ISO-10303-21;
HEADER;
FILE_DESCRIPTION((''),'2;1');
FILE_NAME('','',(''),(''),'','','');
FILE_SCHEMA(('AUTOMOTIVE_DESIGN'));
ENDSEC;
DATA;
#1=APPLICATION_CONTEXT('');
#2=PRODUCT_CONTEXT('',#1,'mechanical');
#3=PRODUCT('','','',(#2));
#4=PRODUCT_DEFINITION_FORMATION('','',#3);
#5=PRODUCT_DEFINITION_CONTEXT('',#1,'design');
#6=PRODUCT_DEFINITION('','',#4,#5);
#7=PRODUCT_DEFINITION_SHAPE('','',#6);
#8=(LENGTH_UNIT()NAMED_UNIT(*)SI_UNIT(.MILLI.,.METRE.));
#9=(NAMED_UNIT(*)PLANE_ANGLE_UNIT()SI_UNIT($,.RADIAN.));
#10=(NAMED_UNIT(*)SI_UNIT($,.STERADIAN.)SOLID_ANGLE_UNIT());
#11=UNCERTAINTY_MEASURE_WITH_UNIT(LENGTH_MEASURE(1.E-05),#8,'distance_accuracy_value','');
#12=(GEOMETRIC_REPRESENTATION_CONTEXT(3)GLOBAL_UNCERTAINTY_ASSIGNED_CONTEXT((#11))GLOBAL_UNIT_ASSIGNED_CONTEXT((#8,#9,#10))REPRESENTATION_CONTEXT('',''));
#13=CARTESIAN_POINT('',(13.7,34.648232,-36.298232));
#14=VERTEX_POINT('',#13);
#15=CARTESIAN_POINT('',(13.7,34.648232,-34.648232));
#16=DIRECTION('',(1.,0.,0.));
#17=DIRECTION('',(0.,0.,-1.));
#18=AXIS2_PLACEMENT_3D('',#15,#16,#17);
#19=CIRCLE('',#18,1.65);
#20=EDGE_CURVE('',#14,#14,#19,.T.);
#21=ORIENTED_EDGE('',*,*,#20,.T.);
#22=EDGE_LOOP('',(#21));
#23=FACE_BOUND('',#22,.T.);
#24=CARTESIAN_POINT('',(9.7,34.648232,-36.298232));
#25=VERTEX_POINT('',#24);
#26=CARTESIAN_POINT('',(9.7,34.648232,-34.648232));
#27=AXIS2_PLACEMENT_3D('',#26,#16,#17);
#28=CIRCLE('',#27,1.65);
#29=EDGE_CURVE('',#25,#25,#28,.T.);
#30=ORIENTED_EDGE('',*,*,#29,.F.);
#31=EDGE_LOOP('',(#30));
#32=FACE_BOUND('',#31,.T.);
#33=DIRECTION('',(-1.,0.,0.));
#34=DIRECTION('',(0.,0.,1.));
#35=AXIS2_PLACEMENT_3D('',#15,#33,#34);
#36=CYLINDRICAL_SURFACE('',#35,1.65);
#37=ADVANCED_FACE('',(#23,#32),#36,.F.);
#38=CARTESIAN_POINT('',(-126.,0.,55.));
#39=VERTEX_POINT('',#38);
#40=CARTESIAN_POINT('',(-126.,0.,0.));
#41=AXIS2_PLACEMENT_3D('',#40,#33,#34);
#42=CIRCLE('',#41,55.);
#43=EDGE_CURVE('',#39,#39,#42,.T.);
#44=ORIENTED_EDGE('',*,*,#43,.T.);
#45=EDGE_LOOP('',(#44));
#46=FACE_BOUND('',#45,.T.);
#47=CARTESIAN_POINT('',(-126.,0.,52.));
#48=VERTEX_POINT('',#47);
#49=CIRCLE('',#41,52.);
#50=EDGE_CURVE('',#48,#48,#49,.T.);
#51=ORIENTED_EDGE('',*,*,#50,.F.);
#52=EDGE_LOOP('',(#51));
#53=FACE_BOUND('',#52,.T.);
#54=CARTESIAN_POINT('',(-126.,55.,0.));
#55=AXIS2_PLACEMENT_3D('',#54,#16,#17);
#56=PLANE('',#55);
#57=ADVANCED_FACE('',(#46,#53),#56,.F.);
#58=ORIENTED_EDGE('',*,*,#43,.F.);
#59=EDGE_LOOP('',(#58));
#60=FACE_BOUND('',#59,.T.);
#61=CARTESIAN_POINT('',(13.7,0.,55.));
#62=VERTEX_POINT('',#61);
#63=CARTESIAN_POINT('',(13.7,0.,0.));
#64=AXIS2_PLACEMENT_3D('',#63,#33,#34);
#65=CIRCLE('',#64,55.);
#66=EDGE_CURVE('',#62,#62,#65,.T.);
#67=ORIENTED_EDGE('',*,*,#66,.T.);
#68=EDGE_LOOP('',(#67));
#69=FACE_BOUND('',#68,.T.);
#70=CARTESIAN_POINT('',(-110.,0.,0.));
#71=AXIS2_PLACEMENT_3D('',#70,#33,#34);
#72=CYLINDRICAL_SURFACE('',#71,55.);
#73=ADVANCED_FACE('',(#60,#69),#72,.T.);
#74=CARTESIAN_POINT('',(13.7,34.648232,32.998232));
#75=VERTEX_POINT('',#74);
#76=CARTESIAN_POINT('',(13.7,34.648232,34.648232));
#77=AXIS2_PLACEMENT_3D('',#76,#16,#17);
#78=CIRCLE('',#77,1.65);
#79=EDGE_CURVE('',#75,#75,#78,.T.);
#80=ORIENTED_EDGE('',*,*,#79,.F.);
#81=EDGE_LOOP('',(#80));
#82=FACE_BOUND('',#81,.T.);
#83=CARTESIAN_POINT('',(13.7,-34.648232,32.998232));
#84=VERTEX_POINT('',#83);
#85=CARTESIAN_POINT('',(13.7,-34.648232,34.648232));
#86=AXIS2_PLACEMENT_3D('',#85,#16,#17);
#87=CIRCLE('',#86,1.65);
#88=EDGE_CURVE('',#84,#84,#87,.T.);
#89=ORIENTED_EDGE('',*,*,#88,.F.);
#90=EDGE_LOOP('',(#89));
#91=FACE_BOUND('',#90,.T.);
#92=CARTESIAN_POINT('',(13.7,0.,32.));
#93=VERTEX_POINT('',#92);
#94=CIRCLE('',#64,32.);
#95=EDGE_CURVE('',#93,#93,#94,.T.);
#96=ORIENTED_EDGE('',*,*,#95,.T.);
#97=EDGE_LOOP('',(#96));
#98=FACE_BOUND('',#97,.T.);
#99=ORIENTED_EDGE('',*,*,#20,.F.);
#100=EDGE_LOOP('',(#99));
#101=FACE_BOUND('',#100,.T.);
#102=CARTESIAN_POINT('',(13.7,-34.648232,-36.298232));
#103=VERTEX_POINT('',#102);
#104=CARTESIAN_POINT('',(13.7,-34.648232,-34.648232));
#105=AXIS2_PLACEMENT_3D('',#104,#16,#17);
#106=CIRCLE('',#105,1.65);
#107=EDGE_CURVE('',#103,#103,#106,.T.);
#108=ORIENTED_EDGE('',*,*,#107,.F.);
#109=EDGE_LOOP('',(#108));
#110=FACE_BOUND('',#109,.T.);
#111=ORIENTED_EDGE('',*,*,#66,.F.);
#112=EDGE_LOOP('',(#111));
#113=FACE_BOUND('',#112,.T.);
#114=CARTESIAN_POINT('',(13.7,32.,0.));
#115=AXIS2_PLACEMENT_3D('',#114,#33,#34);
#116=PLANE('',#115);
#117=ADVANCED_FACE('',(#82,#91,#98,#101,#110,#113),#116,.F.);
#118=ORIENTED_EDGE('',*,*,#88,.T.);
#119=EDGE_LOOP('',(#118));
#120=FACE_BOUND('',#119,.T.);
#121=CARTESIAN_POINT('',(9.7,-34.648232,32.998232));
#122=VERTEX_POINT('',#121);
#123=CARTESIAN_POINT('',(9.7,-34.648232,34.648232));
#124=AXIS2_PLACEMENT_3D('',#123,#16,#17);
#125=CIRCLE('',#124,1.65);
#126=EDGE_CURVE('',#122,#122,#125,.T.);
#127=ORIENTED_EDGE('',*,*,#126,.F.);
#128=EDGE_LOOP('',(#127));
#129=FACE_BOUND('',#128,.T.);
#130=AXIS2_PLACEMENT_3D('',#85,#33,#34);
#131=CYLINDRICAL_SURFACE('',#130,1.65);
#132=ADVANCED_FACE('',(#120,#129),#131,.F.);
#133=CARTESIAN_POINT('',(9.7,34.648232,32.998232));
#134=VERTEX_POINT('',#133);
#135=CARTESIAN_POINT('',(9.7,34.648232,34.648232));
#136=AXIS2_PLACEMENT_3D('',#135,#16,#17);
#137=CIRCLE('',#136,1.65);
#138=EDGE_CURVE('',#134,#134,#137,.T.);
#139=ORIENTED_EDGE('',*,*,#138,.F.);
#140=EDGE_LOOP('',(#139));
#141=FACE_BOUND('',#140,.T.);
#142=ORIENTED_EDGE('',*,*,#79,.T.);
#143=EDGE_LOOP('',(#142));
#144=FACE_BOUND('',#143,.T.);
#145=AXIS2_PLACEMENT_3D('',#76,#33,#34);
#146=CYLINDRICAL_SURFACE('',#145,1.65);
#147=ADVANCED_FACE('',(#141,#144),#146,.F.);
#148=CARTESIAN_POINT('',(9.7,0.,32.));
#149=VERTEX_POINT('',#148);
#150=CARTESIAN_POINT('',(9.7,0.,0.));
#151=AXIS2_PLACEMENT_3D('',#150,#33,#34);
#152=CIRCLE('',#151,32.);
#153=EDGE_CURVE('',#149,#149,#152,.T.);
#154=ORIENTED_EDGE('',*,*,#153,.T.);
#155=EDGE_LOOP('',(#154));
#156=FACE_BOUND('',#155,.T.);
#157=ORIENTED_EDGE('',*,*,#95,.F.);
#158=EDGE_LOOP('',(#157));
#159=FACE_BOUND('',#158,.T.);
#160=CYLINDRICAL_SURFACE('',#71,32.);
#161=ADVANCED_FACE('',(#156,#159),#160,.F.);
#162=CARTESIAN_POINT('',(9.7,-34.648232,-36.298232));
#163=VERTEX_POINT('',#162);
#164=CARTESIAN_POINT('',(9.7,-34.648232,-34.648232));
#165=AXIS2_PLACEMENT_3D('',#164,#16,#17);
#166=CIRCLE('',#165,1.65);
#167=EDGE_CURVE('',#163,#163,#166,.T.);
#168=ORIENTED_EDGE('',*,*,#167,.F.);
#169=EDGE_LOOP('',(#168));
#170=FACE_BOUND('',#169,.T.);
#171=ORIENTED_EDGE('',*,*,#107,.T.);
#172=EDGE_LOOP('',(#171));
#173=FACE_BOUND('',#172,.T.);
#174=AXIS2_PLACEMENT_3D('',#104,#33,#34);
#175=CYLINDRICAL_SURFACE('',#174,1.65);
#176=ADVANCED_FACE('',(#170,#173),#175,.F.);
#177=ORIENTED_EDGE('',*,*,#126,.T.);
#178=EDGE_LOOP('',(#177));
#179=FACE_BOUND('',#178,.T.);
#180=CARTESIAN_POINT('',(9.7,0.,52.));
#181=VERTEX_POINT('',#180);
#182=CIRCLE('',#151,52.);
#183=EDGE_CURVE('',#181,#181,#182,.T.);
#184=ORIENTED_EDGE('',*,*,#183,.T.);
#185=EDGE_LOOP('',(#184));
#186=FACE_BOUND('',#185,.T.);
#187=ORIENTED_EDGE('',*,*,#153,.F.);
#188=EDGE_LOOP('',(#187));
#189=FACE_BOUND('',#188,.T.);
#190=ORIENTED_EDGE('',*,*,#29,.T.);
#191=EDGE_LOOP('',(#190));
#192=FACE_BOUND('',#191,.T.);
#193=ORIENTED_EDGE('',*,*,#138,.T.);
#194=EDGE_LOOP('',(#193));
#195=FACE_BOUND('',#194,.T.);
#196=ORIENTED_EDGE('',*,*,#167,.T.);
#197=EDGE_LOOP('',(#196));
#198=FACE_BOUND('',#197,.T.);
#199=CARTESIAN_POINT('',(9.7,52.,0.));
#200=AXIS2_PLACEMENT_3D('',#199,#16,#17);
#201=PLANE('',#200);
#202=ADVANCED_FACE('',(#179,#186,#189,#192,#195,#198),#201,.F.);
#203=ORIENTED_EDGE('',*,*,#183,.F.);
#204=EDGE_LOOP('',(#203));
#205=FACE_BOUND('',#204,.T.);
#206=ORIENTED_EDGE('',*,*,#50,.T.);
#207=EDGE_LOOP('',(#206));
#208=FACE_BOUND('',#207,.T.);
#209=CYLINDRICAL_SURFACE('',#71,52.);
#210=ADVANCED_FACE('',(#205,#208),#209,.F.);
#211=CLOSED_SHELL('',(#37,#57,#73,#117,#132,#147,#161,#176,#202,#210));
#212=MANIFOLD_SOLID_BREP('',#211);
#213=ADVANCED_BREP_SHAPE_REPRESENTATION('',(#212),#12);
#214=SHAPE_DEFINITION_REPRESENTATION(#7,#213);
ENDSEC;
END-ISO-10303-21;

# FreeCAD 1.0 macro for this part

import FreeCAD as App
import Part
import Sketcher
from FreeCAD import Vector
Q = App.Units.Quantity

doc = App.newDocument("Part")
body = doc.addObject("PartDesign::Body", "Body")

# Sketch on XY plane
sketch1 = body.newObject("Sketcher::SketchObject", "Sketch")
sketch1.AttachmentSupport = (doc.getObject("XY_Plane"), [""])
sketch1.MapMode = "FlatFace"
sketch1.addGeometry([
    Part.LineSegment(Vector(-126, 52, 0), Vector(9.7, 52, 0)),  # 0
    Part.LineSegment(Vector(9.7, 52, 0), Vector(9.7, 32, 0)),  # 1
    Part.LineSegment(Vector(9.7, 32, 0), Vector(13.7, 32, 0)),  # 2
    Part.LineSegment(Vector(13.7, 32, 0), Vector(13.7, 55, 0)),  # 3
    Part.LineSegment(Vector(13.7, 55, 0), Vector(-126, 55, 0)),  # 4
    Part.LineSegment(Vector(-126, 55, 0), Vector(-126, 52, 0)),  # 5
], False)
sketch1.addConstraint([
    Sketcher.Constraint("Coincident", 0, 2, 1, 1),
    Sketcher.Constraint("Coincident", 1, 2, 2, 1),
    Sketcher.Constraint("Coincident", 2, 2, 3, 1),
    Sketcher.Constraint("Coincident", 3, 2, 4, 1),
    Sketcher.Constraint("Coincident", 4, 2, 5, 1),
    Sketcher.Constraint("Coincident", 5, 2, 0, 1),
    Sketcher.Constraint("Horizontal", 0),
    Sketcher.Constraint("Vertical", 1),
    Sketcher.Constraint("Horizontal", 2),
    Sketcher.Constraint("Vertical", 3),
    Sketcher.Constraint("Horizontal", 4),
    Sketcher.Constraint("Vertical", 5),
    Sketcher.Constraint("DistanceX", 2, 1, 2, 2, Q("4 mm")),
    Sketcher.Constraint("DistanceY", 1, 2, 1, 1, Q("20 mm")),
    Sketcher.Constraint("DistanceY", 3, 1, 3, 2, Q("23 mm")),
    Sketcher.Constraint("DistanceX", 0, 1, 0, 2, Q("135.7 mm")),
    Sketcher.Constraint("DistanceY", -1, 1, 0, 2, Q("52 mm")),
    Sketcher.Constraint("DistanceX", 4, 2, -1, 1, Q("126 mm")),
])
revolution = body.newObject("PartDesign::Revolution", "Revolution")
revolution.Profile = sketch1
revolution.ReferenceAxis = (sketch1, ["H_Axis"])
revolution.Angle = 360

# Sketch on YZ plane
sketch2 = body.newObject("Sketcher::SketchObject", "Sketch001")
sketch2.AttachmentSupport = (doc.getObject("YZ_Plane"), [""])
sketch2.MapMode = "FlatFace"
sketch2.AttachmentOffset = App.Placement(Vector(0, 0, 9.7), App.Rotation())
sketch2.addGeometry([
    Part.Circle(Vector(34.6, 34.6, 0), Vector(0, 0, 1), 1.6),
    Part.Circle(Vector(-34.6, 34.6, 0), Vector(0, 0, 1), 1.6),
    Part.Circle(Vector(-34.6, -34.6, 0), Vector(0, 0, 1), 1.6),
    Part.Circle(Vector(34.6, -34.6, 0), Vector(0, 0, 1), 1.6),
], False)
sketch2.addConstraint([
    Sketcher.Constraint("Equal", 0, 1),
    Sketcher.Constraint("Equal", 1, 2),
    Sketcher.Constraint("Equal", 2, 3),
    Sketcher.Constraint("Symmetric", 0, 3, 2, 3, -1, 1),
    Sketcher.Constraint("Symmetric", 1, 3, 3, 3, -1, 1),
    Sketcher.Constraint("Symmetric", 0, 3, 1, 3, -2),
    Sketcher.Constraint("Diameter", 0, Q("3.3 mm")),
    Sketcher.Constraint("DistanceX", -1, 1, 0, 3, Q("34.648232 mm")),
    Sketcher.Constraint("DistanceY", -1, 1, 0, 3, Q("34.648232 mm")),
])
pocket1 = body.newObject("PartDesign::Pocket", "Pocket")
pocket1.Profile = sketch2
pocket1.Length = 4
pocket1.Reversed = True

doc.recompute()
